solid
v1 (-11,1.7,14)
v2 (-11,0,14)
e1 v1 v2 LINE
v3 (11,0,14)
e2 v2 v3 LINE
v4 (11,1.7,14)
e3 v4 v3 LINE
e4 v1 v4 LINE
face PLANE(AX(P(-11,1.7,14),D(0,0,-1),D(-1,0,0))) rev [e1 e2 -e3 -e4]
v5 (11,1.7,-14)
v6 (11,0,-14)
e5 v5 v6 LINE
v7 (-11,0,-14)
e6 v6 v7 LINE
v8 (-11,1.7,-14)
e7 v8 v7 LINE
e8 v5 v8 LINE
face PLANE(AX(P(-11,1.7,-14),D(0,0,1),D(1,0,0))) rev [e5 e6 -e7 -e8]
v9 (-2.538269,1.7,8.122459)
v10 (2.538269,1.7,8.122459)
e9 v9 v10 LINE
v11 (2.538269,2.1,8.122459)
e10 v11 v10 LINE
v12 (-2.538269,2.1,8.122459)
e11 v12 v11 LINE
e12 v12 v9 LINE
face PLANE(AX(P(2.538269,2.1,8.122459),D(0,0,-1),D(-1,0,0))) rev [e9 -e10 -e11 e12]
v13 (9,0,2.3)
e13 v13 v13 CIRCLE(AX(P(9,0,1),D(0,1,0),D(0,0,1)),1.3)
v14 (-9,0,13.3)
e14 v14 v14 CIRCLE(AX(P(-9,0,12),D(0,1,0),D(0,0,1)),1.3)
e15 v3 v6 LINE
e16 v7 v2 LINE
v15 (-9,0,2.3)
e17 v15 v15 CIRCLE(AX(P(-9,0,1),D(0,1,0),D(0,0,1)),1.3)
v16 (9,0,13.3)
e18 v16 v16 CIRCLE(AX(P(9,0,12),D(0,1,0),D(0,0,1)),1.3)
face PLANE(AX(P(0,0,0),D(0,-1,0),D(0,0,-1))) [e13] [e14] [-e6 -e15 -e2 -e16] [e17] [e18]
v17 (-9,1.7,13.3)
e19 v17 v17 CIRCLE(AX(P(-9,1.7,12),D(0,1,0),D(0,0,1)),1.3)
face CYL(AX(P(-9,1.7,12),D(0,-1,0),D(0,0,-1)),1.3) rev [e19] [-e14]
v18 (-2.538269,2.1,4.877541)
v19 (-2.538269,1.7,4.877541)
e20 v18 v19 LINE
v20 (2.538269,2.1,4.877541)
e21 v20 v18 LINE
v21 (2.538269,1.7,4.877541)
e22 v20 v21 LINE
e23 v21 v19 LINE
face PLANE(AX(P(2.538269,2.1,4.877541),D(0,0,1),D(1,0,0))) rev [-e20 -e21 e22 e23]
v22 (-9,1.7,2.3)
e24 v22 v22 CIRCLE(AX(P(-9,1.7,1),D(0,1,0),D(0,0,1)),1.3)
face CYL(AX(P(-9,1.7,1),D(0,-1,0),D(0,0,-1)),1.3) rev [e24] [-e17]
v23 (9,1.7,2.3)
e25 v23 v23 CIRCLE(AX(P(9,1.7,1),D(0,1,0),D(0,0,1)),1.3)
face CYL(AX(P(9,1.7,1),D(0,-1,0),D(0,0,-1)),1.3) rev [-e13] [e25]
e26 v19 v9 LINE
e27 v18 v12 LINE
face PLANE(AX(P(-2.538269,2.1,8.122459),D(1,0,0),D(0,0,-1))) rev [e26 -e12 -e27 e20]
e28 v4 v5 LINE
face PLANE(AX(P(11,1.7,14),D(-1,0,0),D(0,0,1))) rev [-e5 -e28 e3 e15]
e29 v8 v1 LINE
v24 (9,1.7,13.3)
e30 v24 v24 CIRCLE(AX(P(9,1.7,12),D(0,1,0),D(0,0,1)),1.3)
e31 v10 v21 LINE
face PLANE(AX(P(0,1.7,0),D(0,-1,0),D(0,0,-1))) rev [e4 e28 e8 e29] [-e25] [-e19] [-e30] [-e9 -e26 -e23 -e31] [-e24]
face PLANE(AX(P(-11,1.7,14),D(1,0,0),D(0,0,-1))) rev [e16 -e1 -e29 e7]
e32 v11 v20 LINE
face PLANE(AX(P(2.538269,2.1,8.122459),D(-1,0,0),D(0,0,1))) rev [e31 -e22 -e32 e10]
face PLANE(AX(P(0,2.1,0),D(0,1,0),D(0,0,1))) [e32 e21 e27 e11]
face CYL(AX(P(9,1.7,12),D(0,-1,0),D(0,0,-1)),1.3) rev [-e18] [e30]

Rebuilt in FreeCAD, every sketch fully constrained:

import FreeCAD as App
import Part
import Sketcher
Q = App.Units.Quantity

doc = App.newDocument("Part")
params = doc.addObject("Spreadsheet::Sheet", "Params")
for row, (alias, value) in enumerate([
    ("sketch1_diameter", "2.6 mm"),
    ("sketch1_width", "22 mm"),
    ("sketch1_height", "28 mm"),
    ("pad1_length", "1.7 mm"),
    ("pad2_length", "0.4 mm"),
], start=1):
    params.set(f"A{row}", alias)
    params.set(f"B{row}", "=" + value)
    params.setAlias(f"B{row}", alias)

body = doc.addObject("PartDesign::Body", "Body")

sketch1 = doc.addObject("Sketcher::SketchObject", "Sketch")
body.addObject(sketch1)
sketch1.AttachmentSupport = (doc.XZ_Plane, [""])
sketch1.MapMode = "FlatFace"
sketch1.addGeometry([
    Part.LineSegment(App.Vector(-11, -14, 0), App.Vector(-11, 14, 0)),
    Part.LineSegment(App.Vector(-11, 14, 0), App.Vector(11, 14, 0)),
    Part.LineSegment(App.Vector(11, 14, 0), App.Vector(11, -14, 0)),
    Part.LineSegment(App.Vector(11, -14, 0), App.Vector(-11, -14, 0)),
    Part.Circle(App.Vector(-9, 12, 0), App.Vector(0, 0, 1), 1.3),
    Part.Circle(App.Vector(9, 12, 0), App.Vector(0, 0, 1), 1.3),
    Part.Circle(App.Vector(-9, 1, 0), App.Vector(0, 0, 1), 1.3),
    Part.Circle(App.Vector(9, 1, 0), App.Vector(0, 0, 1), 1.3),
], False)
sketch1.addConstraint([
    Sketcher.Constraint("Coincident", 0, 2, 1, 1),
    Sketcher.Constraint("Coincident", 1, 2, 2, 1),
    Sketcher.Constraint("Coincident", 2, 2, 3, 1),
    Sketcher.Constraint("Coincident", 3, 2, 0, 1),
    Sketcher.Constraint("Vertical", 0),
    Sketcher.Constraint("Horizontal", 1),
    Sketcher.Constraint("Vertical", 2),
    Sketcher.Constraint("Horizontal", 3),
    Sketcher.Constraint("Equal", 4, 5),
    Sketcher.Constraint("Equal", 5, 6),
    Sketcher.Constraint("Equal", 6, 7),
    Sketcher.Constraint("Symmetric", 0, 2, 2, 2, -1, 1),
    Sketcher.Constraint("Symmetric", 4, 3, 5, 3, -2),
    Sketcher.Constraint("Symmetric", 6, 3, 7, 3, -2),
    Sketcher.Constraint("Vertical", 4, 3, 6, 3),
    Sketcher.Constraint("Diameter", 4, Q("2.6 mm")),
    Sketcher.Constraint("DistanceX", 1, 1, 1, 2, Q("22 mm")),
    Sketcher.Constraint("DistanceY", 0, 1, 0, 2, Q("28 mm")),
    Sketcher.Constraint("DistanceX", 4, 3, -1, 1, Q("9 mm")),
    Sketcher.Constraint("DistanceY", -1, 1, 4, 3, Q("12 mm")),
    Sketcher.Constraint("DistanceY", -1, 1, 6, 3, Q("1 mm")),
])
sketch1.setExpression("Constraints[15]", "Params.sketch1_diameter")
sketch1.setExpression("Constraints[16]", "Params.sketch1_width")
sketch1.setExpression("Constraints[17]", "Params.sketch1_height")
pad1 = doc.addObject("PartDesign::Pad", "Pad")
body.addObject(pad1)
pad1.Profile = sketch1
pad1.setExpression("Length", "Params.pad1_length")
pad1.Reversed = True

sketch2 = doc.addObject("Sketcher::SketchObject", "Sketch001")
body.addObject(sketch2)
sketch2.AttachmentSupport = (doc.XZ_Plane, [""])
sketch2.MapMode = "FlatFace"
sketch2.AttachmentOffset = App.Placement(App.Vector(0, 0, -1.7), App.Rotation())
sketch2.addGeometry([
    Part.LineSegment(App.Vector(-2.5, 4.9, 0), App.Vector(-2.5, 8.1, 0)),
    Part.LineSegment(App.Vector(-2.5, 8.1, 0), App.Vector(2.5, 8.1, 0)),
    Part.LineSegment(App.Vector(2.5, 8.1, 0), App.Vector(2.5, 4.9, 0)),
    Part.LineSegment(App.Vector(2.5, 4.9, 0), App.Vector(-2.5, 4.9, 0)),
], False)
sketch2.addConstraint([
    Sketcher.Constraint("Coincident", 0, 2, 1, 1),
    Sketcher.Constraint("Coincident", 1, 2, 2, 1),
    Sketcher.Constraint("Coincident", 2, 2, 3, 1),
    Sketcher.Constraint("Coincident", 3, 2, 0, 1),
    Sketcher.Constraint("Vertical", 0),
    Sketcher.Constraint("Horizontal", 1),
    Sketcher.Constraint("Vertical", 2),
    Sketcher.Constraint("Horizontal", 3),
    Sketcher.Constraint("DistanceY", 0, 1, 0, 2, Q("3.244919 mm")),
    Sketcher.Constraint("DistanceX", 1, 1, 1, 2, Q("5.076537 mm")),
    Sketcher.Constraint("DistanceX", 0, 2, -1, 1, Q("2.538269 mm")),
    Sketcher.Constraint("DistanceY", -1, 1, 0, 2, Q("8.122459 mm")),
])
pad2 = doc.addObject("PartDesign::Pad", "Pad001")
body.addObject(pad2)
pad2.Profile = sketch2
pad2.setExpression("Length", "Params.pad2_length")
pad2.Reversed = True

doc.recompute()
